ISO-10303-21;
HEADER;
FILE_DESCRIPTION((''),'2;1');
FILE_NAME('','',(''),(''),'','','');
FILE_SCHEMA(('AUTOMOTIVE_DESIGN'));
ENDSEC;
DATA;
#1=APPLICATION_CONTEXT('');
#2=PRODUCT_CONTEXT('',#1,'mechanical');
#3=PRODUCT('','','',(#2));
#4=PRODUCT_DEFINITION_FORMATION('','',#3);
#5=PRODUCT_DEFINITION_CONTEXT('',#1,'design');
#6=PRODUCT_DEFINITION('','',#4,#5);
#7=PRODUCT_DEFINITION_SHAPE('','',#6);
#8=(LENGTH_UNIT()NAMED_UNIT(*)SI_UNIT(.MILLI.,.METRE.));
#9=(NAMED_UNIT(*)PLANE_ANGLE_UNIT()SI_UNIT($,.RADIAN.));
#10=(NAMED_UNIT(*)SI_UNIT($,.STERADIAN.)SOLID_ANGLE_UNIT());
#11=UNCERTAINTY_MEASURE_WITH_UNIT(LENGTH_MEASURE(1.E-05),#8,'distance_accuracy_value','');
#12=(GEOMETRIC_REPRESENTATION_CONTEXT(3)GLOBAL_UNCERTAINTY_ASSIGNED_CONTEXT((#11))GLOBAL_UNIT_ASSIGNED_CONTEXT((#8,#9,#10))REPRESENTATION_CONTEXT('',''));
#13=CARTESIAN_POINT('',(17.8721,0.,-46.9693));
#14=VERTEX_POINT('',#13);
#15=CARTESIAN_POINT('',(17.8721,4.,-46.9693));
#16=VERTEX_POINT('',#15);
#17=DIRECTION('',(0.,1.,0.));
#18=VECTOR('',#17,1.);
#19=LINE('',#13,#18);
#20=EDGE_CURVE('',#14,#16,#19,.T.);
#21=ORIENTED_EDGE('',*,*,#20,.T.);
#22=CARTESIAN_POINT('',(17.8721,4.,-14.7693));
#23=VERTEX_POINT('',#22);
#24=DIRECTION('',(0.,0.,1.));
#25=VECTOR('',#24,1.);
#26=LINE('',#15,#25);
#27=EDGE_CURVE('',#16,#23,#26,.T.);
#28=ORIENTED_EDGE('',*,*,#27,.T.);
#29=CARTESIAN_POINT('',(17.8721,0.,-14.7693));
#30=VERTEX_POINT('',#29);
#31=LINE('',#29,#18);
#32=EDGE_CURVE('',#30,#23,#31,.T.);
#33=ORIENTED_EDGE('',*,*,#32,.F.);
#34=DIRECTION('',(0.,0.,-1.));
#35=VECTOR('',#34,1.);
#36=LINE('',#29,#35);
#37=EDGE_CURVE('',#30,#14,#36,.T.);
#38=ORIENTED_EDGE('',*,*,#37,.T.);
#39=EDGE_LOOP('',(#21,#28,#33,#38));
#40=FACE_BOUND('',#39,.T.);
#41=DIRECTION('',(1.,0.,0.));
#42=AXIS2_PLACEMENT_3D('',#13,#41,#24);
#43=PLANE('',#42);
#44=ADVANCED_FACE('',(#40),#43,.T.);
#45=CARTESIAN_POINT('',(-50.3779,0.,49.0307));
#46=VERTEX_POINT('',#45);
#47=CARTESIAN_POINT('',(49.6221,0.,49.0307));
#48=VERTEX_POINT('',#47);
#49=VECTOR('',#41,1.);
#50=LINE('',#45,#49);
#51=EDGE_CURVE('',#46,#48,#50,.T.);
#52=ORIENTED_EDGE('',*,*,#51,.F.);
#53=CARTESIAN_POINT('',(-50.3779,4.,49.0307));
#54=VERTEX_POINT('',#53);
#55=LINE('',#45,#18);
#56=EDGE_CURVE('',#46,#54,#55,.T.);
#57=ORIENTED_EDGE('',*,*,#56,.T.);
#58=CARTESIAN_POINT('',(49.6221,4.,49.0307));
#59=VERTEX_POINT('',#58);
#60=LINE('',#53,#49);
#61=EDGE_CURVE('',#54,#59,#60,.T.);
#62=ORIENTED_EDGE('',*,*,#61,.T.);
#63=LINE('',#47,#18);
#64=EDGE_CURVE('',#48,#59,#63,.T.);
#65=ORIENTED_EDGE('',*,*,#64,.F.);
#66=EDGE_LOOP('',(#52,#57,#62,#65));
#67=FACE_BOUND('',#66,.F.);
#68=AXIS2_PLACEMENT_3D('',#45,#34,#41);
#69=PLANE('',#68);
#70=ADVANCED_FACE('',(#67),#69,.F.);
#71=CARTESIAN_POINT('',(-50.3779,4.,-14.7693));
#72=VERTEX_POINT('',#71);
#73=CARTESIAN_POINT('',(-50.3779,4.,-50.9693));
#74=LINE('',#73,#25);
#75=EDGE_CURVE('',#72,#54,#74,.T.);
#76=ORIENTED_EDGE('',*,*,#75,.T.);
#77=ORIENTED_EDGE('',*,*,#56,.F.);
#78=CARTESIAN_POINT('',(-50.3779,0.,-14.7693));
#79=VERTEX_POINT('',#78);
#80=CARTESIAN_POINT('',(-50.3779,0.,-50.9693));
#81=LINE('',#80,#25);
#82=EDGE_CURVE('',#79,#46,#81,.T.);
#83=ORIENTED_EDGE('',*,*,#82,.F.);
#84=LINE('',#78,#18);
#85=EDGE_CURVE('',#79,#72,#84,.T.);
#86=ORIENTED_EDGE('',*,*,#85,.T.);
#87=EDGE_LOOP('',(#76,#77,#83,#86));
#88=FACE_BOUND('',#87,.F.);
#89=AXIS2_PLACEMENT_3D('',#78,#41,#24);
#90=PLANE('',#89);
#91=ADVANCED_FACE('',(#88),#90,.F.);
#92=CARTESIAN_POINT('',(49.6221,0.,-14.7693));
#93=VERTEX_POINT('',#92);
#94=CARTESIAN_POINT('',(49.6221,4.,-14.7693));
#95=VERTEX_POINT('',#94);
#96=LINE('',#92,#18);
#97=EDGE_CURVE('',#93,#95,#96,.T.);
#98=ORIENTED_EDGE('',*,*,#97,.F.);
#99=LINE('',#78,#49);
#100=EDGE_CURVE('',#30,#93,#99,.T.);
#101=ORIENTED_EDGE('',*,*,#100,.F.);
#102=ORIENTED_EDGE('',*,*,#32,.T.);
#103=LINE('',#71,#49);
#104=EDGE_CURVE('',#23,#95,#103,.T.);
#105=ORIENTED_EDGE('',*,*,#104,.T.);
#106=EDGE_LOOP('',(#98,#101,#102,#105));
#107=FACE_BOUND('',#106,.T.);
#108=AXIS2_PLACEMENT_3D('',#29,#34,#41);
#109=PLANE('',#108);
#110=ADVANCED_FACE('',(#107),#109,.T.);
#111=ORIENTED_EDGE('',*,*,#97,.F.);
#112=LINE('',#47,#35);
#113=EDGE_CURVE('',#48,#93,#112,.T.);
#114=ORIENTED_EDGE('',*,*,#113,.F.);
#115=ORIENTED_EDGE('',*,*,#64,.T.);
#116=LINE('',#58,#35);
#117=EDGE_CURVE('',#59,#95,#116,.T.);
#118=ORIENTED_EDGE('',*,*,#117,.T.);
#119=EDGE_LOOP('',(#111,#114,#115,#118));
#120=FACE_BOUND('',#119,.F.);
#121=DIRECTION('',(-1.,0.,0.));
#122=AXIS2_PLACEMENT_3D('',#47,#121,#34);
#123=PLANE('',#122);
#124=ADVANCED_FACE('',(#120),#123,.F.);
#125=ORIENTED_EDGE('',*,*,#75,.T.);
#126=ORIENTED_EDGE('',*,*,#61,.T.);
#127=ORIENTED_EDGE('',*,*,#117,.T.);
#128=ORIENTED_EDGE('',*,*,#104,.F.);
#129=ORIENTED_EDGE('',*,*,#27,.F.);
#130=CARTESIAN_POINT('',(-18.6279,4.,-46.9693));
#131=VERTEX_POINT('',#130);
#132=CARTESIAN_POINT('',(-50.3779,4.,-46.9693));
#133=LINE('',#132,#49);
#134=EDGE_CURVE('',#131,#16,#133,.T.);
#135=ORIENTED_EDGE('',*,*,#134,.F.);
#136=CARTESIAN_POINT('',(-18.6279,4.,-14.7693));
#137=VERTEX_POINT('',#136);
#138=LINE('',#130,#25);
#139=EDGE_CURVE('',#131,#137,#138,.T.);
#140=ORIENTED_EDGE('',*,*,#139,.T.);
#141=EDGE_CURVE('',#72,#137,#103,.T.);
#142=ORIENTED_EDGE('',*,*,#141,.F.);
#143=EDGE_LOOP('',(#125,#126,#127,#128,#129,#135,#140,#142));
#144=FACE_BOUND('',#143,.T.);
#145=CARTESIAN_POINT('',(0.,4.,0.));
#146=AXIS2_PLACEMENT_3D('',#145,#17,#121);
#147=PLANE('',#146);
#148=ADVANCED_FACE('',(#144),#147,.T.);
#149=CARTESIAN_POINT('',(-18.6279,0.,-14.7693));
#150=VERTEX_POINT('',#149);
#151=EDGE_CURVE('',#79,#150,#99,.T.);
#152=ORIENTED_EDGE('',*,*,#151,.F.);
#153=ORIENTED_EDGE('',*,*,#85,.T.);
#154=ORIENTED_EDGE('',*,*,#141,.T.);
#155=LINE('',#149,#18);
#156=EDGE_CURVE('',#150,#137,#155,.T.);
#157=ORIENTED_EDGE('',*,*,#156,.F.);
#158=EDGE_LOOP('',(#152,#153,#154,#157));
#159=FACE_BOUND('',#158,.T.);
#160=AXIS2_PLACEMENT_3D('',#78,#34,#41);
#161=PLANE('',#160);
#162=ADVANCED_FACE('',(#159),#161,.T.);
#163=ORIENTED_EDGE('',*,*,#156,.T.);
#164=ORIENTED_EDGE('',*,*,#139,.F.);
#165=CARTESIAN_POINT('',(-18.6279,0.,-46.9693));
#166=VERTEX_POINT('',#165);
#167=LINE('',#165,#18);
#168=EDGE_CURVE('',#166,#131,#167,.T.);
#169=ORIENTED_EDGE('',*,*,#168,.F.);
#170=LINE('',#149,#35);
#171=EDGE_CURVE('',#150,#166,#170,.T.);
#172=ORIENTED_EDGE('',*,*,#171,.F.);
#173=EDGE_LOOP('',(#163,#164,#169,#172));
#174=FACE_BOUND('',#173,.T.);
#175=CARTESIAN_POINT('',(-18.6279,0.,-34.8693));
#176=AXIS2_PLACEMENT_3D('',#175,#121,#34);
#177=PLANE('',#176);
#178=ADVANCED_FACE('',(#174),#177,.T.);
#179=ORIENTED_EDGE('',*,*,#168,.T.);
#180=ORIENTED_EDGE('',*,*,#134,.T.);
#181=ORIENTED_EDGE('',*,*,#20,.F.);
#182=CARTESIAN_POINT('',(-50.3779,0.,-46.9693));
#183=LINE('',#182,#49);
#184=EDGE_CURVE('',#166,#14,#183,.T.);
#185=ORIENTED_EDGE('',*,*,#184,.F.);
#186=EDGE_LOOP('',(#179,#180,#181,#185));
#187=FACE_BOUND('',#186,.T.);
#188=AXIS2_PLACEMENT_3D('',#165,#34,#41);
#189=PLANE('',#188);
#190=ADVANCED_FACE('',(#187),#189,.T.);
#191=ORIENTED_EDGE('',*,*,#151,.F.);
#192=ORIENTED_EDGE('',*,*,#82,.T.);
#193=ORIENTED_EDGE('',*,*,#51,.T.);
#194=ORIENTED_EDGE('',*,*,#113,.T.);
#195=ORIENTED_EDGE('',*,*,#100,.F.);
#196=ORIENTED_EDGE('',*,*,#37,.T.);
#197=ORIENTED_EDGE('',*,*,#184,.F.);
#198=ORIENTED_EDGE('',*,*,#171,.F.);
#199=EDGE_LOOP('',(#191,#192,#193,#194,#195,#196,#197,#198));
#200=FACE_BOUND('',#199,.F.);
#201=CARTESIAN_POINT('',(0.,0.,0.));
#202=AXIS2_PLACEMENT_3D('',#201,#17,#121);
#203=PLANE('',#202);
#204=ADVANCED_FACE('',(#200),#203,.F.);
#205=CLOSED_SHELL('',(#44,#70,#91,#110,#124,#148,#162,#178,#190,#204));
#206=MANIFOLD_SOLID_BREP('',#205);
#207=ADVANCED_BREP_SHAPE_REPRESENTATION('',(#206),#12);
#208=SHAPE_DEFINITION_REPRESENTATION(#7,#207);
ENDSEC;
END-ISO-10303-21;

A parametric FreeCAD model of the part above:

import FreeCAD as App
import Part
import Sketcher
from FreeCAD import Vector
Q = App.Units.Quantity

doc = App.newDocument("Part")
params = doc.addObject("Spreadsheet::Sheet", "Params")
for row, (alias, value) in enumerate([
    ("sketch1_width", "1.437 in"),
    ("sketch1_width2", "3.937 in"),
    ("pad1_length", "4 mm"),
], start=1):
    params.set(f"A{row}", alias)
    params.set(f"B{row}", "=" + value)
    params.setAlias(f"B{row}", alias)

body = doc.addObject("PartDesign::Body", "Body")

sketch1 = body.newObject("Sketcher::SketchObject", "Sketch")
sketch1.AttachmentSupport = (doc.getObject("XZ_Plane"), [""])
sketch1.MapMode = "FlatFace"
sketch1.addGeometry(Part.LineSegment(Vector(18, -47, 0), Vector(-19, -47, 0)), False)
sketch1.addGeometry(Part.LineSegment(Vector(-19, -47, 0), Vector(-19, -15, 0)), False)
sketch1.addGeometry(Part.LineSegment(Vector(-19, -15, 0), Vector(-50, -15, 0)), False)
sketch1.addGeometry(Part.LineSegment(Vector(-50, -15, 0), Vector(-50, 49, 0)), False)
sketch1.addGeometry(Part.LineSegment(Vector(-50, 49, 0), Vector(50, 49, 0)), False)
sketch1.addGeometry(Part.LineSegment(Vector(50, 49, 0), Vector(50, -15, 0)), False)
sketch1.addGeometry(Part.LineSegment(Vector(50, -15, 0), Vector(18, -15, 0)), False)
sketch1.addGeometry(Part.LineSegment(Vector(18, -15, 0), Vector(18, -47, 0)), False)
sketch1.addConstraint(Sketcher.Constraint("Coincident", 0, 2, 1, 1))
sketch1.addConstraint(Sketcher.Constraint("Coincident", 1, 2, 2, 1))
sketch1.addConstraint(Sketcher.Constraint("Coincident", 2, 2, 3, 1))
sketch1.addConstraint(Sketcher.Constraint("Coincident", 3, 2, 4, 1))
sketch1.addConstraint(Sketcher.Constraint("Coincident", 4, 2, 5, 1))
sketch1.addConstraint(Sketcher.Constraint("Coincident", 5, 2, 6, 1))
sketch1.addConstraint(Sketcher.Constraint("Coincident", 6, 2, 7, 1))
sketch1.addConstraint(Sketcher.Constraint("Coincident", 7, 2, 0, 1))
sketch1.addConstraint(Sketcher.Constraint("Horizontal", 0))
sketch1.addConstraint(Sketcher.Constraint("Vertical", 1))
sketch1.addConstraint(Sketcher.Constraint("Horizontal", 2))
sketch1.addConstraint(Sketcher.Constraint("Vertical", 3))
sketch1.addConstraint(Sketcher.Constraint("Horizontal", 4))
sketch1.addConstraint(Sketcher.Constraint("Vertical", 5))
sketch1.addConstraint(Sketcher.Constraint("Horizontal", 6))
sketch1.addConstraint(Sketcher.Constraint("Vertical", 7))
sketch1.addConstraint(Sketcher.Constraint("Horizontal", 2, 2, 5, 2))
sketch1.addConstraint(Sketcher.Constraint("Equal", 2, 6))
sketch1.addConstraint(Sketcher.Constraint("DistanceX", 0, 2, 0, 1, Q("1.437 in")))
sketch1.addConstraint(Sketcher.Constraint("DistanceX", 4, 1, 4, 2, Q("3.937 in")))
sketch1.addConstraint(Sketcher.Constraint("DistanceY", 1, 1, 1, 2, 32.2))
sketch1.addConstraint(Sketcher.Constraint("DistanceY", 3, 1, 3, 2, Q("2.5118 in")))
sketch1.addConstraint(Sketcher.Constraint("DistanceX", 0, 2, -1, 1, 18.628))
sketch1.addConstraint(Sketcher.Constraint("DistanceY", 0, 2, -1, 1, 46.9693))
sketch1.setExpression("Constraints[18]", "Params.sketch1_width")
sketch1.setExpression("Constraints[19]", "Params.sketch1_width2")
pad1 = body.newObject("PartDesign::Pad", "Pad")
pad1.Profile = sketch1
pad1.setExpression("Length", "Params.pad1_length")
pad1.Reversed = True

doc.recompute()
